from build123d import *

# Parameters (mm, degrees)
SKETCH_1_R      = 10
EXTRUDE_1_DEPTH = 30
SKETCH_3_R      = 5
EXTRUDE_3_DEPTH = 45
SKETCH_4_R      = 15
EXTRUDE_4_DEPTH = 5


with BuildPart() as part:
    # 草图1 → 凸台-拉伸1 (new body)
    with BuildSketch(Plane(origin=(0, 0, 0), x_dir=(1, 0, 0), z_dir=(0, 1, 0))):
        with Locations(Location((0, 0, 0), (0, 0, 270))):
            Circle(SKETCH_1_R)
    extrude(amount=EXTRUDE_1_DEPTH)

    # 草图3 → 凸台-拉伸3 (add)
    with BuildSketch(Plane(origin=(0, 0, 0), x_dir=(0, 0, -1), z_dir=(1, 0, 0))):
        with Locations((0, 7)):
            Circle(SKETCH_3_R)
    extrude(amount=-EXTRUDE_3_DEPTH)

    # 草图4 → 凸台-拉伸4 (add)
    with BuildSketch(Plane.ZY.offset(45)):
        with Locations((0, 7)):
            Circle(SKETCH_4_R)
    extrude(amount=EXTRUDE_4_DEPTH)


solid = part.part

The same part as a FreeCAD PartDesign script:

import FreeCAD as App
import Part
import Sketcher
from FreeCAD import Vector
Q = App.Units.Quantity

doc = App.newDocument("Part")
body = doc.addObject("PartDesign::Body", "Body")

# Sketch on XZ plane
sketch1 = body.newObject("Sketcher::SketchObject", "Sketch")
sketch1.AttachmentSupport = (doc.getObject("XZ_Plane"), [""])
sketch1.MapMode = "FlatFace"
sketch1.addGeometry(Part.Circle(Vector(0, 0, 0), Vector(0, 0, 1), 10), False)
sketch1.addConstraint([
    Sketcher.Constraint("Coincident", 0, 3, -1, 1),
    Sketcher.Constraint("Diameter", 0, Q("20 mm")),
])
pad1 = body.newObject("PartDesign::Pad", "Pad")
pad1.Profile = sketch1
pad1.Length = 30
pad1.Reversed = True

# Sketch on YZ plane
sketch2 = body.newObject("Sketcher::SketchObject", "Sketch001")
sketch2.AttachmentSupport = (doc.getObject("YZ_Plane"), [""])
sketch2.MapMode = "FlatFace"
sketch2.addGeometry(Part.Circle(Vector(7, 0, 0), Vector(0, 0, 1), 5), False)
sketch2.addConstraint([
    Sketcher.Constraint("PointOnObject", 0, 3, -1),
    Sketcher.Constraint("Diameter", 0, Q("10 mm")),
    Sketcher.Constraint("DistanceX", -1, 1, 0, 3, Q("7 mm")),
])
pad2 = body.newObject("PartDesign::Pad", "Pad001")
pad2.Profile = sketch2
pad2.Length = 45
pad2.Reversed = True

# Sketch on YZ plane
sketch3 = body.newObject("Sketcher::SketchObject", "Sketch002")
sketch3.AttachmentSupport = (doc.getObject("YZ_Plane"), [""])
sketch3.MapMode = "FlatFace"
sketch3.AttachmentOffset = App.Placement(Vector(0, 0, -45), App.Rotation())
sketch3.addGeometry(Part.Circle(Vector(7, 0, 0), Vector(0, 0, 1), 15), False)
sketch3.addConstraint([
    Sketcher.Constraint("PointOnObject", 0, 3, -1),
    Sketcher.Constraint("Diameter", 0, Q("30 mm")),
    Sketcher.Constraint("DistanceX", -1, 1, 0, 3, Q("7 mm")),
])
pad3 = body.newObject("PartDesign::Pad", "Pad002")
pad3.Profile = sketch3
pad3.Length = 5
pad3.Reversed = True

doc.recompute()
